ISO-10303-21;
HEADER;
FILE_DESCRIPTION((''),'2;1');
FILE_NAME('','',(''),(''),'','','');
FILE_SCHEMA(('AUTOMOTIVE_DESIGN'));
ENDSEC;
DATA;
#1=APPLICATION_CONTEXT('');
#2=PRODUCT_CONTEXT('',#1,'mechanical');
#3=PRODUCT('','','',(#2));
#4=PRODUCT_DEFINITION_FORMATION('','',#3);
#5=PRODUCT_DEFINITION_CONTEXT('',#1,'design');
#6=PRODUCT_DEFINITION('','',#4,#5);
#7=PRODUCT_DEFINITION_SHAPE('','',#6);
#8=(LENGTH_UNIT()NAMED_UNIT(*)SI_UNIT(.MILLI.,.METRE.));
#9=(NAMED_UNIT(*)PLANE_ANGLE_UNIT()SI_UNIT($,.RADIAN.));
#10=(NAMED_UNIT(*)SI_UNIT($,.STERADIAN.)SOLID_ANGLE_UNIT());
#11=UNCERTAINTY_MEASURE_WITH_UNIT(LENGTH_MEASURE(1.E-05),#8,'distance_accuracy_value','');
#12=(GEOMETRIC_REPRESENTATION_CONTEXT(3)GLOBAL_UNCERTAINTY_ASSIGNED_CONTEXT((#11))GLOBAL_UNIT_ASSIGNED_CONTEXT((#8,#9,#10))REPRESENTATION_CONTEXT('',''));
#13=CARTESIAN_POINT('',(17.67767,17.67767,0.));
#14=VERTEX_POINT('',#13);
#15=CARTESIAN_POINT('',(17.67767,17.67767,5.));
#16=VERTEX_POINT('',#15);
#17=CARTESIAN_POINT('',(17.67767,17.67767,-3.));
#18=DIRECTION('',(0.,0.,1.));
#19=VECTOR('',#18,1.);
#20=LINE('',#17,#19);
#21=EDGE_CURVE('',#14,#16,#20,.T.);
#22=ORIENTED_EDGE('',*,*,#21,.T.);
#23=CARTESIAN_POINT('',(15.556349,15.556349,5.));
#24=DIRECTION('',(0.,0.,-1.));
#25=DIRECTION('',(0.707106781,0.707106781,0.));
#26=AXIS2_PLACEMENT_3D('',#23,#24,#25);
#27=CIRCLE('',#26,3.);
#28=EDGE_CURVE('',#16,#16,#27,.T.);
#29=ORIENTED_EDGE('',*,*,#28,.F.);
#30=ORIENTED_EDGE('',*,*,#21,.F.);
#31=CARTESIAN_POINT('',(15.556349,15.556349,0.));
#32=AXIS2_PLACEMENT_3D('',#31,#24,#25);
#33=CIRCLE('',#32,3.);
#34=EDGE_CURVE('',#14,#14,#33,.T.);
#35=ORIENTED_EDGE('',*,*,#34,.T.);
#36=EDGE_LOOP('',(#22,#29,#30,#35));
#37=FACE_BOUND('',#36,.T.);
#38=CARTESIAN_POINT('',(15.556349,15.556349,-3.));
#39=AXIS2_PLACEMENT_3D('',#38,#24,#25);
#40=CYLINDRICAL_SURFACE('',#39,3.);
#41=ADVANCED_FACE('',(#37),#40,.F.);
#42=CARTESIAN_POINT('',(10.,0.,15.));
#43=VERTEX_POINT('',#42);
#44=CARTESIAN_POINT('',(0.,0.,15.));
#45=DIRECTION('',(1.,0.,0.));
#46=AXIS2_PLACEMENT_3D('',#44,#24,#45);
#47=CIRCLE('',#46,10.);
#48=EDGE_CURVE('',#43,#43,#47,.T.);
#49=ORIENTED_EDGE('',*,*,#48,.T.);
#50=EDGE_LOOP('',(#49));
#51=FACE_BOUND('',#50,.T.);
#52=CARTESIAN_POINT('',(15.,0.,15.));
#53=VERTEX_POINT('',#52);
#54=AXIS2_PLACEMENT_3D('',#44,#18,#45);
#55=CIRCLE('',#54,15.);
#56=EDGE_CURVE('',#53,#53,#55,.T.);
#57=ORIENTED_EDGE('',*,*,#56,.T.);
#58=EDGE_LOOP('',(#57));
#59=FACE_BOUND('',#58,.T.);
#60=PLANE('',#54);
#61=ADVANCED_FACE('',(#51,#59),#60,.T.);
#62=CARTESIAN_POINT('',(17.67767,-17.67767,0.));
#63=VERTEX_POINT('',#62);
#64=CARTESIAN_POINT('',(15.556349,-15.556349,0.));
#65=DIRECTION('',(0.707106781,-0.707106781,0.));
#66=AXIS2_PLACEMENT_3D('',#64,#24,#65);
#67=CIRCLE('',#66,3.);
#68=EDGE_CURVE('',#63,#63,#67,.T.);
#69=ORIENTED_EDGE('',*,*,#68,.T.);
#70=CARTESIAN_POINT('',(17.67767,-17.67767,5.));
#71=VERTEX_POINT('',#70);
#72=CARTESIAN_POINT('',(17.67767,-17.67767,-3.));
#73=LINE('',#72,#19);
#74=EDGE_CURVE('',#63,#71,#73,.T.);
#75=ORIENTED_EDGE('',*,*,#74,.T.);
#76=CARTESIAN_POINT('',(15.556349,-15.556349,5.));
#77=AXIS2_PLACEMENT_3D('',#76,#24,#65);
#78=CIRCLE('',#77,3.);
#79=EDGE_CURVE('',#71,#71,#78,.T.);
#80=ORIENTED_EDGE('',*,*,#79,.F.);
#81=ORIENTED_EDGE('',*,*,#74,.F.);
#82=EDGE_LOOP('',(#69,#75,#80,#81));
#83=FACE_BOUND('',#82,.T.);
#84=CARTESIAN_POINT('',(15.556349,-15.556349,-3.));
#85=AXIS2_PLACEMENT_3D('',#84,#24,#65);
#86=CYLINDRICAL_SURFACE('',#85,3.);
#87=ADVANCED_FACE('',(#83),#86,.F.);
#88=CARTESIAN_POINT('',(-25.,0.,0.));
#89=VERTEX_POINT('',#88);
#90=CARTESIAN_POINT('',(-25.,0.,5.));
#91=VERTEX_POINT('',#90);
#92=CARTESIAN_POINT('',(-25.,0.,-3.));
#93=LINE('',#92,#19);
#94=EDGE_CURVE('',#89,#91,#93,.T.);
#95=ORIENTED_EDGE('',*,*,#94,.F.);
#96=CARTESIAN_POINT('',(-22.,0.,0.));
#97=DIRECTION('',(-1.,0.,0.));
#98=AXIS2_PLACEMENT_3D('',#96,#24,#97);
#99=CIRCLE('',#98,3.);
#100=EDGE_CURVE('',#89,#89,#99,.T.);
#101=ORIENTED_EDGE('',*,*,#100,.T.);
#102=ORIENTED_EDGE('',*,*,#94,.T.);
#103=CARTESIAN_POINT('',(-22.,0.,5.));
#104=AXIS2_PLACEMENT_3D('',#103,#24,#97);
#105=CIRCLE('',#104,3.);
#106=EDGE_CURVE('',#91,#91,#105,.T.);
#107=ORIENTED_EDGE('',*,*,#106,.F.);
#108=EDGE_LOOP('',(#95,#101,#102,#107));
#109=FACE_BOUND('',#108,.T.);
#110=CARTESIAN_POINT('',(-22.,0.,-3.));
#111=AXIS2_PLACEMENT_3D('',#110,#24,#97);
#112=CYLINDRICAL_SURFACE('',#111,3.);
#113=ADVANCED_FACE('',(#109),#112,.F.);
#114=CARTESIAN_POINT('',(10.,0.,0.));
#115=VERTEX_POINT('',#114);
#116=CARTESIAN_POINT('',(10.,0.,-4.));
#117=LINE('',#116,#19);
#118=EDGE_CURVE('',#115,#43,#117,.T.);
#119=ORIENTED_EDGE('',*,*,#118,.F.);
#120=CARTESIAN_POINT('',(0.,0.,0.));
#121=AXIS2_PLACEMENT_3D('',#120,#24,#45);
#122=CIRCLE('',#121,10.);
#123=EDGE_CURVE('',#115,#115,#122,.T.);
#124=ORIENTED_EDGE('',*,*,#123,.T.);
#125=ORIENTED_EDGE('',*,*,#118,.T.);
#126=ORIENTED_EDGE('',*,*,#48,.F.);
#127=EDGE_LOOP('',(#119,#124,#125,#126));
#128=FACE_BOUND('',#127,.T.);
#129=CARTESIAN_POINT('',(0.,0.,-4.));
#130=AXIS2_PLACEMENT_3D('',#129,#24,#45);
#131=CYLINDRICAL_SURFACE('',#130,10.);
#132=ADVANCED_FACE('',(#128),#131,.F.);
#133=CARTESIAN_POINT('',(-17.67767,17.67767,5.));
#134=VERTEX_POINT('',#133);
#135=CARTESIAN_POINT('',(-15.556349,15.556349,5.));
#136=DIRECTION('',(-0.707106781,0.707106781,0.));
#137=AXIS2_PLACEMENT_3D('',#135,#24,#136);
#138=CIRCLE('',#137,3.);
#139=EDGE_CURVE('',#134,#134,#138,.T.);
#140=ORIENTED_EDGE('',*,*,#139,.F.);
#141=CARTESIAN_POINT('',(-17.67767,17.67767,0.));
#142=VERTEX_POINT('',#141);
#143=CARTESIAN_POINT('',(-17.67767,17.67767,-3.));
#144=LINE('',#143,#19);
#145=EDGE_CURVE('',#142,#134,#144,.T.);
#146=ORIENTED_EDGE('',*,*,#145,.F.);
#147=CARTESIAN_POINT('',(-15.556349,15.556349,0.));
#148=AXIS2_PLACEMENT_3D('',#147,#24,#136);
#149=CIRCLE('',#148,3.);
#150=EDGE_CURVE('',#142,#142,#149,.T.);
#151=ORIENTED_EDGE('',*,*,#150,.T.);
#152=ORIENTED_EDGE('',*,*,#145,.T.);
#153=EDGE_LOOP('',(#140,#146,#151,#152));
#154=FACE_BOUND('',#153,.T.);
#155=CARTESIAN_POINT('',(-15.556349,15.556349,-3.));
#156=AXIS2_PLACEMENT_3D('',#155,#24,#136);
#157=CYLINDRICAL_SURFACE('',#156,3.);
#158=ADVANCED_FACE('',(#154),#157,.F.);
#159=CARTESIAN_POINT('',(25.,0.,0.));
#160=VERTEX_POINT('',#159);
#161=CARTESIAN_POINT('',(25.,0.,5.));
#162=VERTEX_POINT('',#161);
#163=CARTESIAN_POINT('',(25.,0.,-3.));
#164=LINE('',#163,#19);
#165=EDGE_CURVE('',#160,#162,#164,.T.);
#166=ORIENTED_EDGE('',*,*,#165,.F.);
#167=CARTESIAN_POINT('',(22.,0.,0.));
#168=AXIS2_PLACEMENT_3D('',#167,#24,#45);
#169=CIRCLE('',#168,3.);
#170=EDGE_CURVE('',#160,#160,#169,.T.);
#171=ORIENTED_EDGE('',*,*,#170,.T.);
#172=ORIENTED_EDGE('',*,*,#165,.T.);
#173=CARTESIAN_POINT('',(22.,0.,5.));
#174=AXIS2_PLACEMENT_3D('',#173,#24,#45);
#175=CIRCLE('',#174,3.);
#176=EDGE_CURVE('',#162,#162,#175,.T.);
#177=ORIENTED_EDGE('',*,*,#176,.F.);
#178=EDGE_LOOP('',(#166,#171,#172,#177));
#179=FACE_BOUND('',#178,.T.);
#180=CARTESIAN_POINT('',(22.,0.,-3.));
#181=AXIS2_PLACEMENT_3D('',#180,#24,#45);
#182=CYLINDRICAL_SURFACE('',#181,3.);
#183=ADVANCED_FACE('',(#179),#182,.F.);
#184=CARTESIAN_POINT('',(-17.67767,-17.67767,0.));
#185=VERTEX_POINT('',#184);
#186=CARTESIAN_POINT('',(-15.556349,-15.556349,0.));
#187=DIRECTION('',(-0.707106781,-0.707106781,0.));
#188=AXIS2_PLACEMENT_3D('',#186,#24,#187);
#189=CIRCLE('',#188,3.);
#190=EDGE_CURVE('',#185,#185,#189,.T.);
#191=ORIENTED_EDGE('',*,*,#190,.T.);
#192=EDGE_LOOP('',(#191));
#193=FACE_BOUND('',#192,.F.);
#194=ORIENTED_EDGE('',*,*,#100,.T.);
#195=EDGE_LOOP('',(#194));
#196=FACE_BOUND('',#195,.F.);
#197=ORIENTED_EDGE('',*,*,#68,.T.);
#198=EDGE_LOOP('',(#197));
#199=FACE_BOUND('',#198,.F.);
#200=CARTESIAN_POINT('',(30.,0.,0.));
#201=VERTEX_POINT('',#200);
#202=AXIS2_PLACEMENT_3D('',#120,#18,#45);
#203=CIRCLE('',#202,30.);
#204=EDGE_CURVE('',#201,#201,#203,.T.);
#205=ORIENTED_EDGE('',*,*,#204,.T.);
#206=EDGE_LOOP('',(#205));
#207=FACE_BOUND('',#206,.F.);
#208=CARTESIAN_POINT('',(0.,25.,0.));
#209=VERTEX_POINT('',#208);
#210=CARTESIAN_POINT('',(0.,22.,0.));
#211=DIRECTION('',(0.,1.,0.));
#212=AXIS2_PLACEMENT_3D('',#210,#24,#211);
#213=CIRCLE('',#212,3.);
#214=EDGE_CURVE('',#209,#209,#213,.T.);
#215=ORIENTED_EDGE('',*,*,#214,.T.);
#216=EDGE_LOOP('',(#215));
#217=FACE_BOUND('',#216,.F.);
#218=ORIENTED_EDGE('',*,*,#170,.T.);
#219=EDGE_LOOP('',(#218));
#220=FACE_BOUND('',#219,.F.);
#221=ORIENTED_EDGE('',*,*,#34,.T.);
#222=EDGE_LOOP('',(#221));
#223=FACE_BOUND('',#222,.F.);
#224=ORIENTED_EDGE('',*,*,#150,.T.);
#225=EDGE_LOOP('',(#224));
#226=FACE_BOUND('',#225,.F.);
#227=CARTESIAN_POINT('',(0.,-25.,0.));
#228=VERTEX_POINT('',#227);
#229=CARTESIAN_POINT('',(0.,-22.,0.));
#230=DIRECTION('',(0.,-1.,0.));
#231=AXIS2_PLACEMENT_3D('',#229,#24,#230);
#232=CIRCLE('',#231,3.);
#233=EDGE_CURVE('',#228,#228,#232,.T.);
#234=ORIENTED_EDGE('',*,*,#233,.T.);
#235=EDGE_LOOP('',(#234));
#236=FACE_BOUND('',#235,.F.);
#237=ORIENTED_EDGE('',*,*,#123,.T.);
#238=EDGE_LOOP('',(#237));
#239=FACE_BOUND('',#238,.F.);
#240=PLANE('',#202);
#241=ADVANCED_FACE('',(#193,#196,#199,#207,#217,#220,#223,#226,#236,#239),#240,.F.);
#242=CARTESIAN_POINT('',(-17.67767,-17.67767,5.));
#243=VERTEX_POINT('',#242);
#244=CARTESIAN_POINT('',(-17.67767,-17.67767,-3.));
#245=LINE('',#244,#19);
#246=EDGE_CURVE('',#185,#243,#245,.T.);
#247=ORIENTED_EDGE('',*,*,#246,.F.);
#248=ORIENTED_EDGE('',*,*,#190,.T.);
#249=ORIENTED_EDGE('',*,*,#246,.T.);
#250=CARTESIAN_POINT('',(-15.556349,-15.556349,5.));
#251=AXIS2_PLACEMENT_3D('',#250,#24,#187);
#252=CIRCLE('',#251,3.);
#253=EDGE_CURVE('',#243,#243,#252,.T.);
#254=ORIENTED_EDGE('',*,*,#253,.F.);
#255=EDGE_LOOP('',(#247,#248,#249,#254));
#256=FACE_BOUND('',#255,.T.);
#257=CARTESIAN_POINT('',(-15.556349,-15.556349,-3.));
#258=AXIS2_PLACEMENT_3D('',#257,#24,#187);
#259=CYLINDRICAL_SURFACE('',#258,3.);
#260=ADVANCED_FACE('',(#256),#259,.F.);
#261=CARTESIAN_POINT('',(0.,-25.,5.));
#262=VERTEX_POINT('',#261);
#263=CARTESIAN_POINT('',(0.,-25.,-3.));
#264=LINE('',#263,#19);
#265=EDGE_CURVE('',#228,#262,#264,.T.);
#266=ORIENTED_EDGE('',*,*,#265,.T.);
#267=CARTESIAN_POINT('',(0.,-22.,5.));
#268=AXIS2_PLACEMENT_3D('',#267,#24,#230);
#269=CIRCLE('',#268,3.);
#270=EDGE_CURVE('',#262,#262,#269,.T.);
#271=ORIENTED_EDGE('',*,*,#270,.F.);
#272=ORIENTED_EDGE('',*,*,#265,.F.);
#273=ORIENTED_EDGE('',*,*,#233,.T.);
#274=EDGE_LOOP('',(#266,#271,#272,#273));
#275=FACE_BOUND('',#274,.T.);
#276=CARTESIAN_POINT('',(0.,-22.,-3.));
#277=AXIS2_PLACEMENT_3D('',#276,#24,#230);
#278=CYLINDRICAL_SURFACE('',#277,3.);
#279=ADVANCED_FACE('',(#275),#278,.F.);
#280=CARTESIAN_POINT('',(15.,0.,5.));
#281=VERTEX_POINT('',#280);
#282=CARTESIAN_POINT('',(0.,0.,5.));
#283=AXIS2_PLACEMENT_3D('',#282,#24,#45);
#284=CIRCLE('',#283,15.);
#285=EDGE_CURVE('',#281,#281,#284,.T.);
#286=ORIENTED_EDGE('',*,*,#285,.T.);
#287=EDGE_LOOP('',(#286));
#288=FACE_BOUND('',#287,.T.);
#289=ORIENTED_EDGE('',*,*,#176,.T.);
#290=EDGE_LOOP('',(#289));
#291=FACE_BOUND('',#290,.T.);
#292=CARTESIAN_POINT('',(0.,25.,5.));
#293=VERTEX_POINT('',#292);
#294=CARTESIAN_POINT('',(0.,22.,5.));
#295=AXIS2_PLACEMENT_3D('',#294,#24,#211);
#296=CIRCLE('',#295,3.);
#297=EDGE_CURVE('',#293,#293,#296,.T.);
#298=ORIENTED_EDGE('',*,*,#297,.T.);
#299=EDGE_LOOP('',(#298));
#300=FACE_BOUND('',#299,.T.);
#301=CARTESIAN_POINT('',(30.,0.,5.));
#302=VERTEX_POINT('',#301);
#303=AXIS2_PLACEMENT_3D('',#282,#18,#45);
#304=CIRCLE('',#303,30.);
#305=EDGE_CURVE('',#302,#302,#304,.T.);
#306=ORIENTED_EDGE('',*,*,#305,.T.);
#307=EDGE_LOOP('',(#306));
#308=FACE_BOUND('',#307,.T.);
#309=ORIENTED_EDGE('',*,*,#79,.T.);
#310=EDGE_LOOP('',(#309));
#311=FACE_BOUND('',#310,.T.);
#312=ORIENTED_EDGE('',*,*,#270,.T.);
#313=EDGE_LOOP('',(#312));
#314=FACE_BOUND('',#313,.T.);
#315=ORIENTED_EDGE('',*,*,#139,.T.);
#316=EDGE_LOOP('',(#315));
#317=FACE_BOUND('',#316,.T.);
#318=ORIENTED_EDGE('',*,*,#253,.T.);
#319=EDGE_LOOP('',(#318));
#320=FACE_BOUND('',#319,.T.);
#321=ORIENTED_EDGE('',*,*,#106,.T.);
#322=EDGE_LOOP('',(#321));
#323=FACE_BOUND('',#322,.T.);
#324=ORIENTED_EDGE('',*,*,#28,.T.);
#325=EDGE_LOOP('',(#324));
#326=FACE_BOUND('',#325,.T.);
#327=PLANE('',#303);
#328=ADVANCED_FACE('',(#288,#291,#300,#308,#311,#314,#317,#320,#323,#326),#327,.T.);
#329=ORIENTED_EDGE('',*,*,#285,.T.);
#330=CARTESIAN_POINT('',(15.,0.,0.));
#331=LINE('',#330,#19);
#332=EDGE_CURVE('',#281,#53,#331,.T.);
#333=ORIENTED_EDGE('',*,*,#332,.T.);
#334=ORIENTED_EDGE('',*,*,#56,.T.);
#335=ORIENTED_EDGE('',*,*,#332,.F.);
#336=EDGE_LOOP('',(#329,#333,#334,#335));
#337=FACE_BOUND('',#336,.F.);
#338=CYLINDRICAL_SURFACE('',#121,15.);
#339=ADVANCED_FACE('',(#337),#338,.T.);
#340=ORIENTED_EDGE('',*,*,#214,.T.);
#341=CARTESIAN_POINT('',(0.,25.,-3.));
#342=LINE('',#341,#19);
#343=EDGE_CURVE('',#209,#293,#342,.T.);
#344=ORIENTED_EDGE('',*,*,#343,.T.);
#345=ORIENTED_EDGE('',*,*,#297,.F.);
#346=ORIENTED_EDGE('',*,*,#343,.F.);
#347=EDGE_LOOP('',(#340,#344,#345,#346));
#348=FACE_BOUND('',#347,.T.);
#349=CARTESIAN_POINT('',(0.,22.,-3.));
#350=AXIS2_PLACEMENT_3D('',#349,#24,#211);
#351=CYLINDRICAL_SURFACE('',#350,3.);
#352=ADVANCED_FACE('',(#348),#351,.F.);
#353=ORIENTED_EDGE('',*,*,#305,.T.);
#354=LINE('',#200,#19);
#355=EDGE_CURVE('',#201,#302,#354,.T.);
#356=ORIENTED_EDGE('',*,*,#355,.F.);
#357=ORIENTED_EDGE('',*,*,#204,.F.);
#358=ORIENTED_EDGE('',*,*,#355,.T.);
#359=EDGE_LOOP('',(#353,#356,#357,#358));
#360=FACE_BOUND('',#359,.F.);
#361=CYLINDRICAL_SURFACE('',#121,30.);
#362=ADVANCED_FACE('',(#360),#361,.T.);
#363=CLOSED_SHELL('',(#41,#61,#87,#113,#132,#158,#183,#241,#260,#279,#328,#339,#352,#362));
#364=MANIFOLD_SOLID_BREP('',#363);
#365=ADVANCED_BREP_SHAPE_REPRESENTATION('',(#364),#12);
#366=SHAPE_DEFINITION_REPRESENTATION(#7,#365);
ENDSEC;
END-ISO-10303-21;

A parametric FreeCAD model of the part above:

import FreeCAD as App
import Part
import Sketcher

V = App.Vector

doc = App.newDocument("Part")
params = doc.addObject("Spreadsheet::Sheet", "Params")
for row, (alias, value) in enumerate([
    ("sketch1_diameter", "6 mm"),
    ("pad1_length", "10 mm"),
    ("sketch2_diameter", "20 mm"),
    ("pad2_length", "30 mm"),
    ("sketch3_diameter", "30 mm"),
    ("pad3_length", "15 mm"),
    ("sketch4_diameter", "60 mm"),
    ("pad4_length", "5 mm"),
], start=1):
    params.set(f"A{row}", alias)
    params.set(f"B{row}", "=" + value)
    params.setAlias(f"B{row}", alias)

body = doc.addObject("PartDesign::Body", "Body")

# Sketch on XY plane
sketch1 = doc.addObject("Sketcher::SketchObject", "Sketch")
body.addObject(sketch1)
sketch1.AttachmentSupport = (doc.XY_Plane, [""])
sketch1.MapMode = "FlatFace"
sketch1.AttachmentOffset = App.Placement(V(0, 0, -3), App.Rotation())
sketch1.addGeometry(Part.Circle(V(22, 0, 0), V(0, 0, 1), 3), False)
sketch1.addConstraint(Sketcher.Constraint("PointOnObject", 0, 3, -1))
sketch1.addConstraint(Sketcher.Constraint("Diameter", 0, 6.0))
sketch1.addConstraint(Sketcher.Constraint("DistanceX", -1, 1, 0, 3, 22.0))
sketch1.setExpression("Constraints[1]", "Params.sketch1_diameter")
pad1 = doc.addObject("PartDesign::Pad", "Pad")
body.addObject(pad1)
pad1.Profile = sketch1
pad1.setExpression("Length", "Params.pad1_length")
body2 = doc.addObject("PartDesign::Body", "Body001")
body2.AllowCompound = True
doc.recompute()

body2.BaseFeature = body
doc.recompute()

body3 = doc.addObject("PartDesign::Body", "Body002")
body3.BaseFeature = body
body3.Placement = App.Placement(V(0, 0, 0), App.Rotation(V(0, 0, 1), 45))
boolean = doc.addObject("PartDesign::Boolean", "Boolean")
body2.addObject(boolean)
boolean.Type = "Fuse"
boolean.addObjects([body3])
doc.recompute()

body4 = doc.addObject("PartDesign::Body", "Body003")
body4.BaseFeature = body
body4.Placement = App.Placement(V(0, 0, 0), App.Rotation(V(0, 0, 1), 90))
boolean2 = doc.addObject("PartDesign::Boolean", "Boolean001")
body2.addObject(boolean2)
boolean2.Type = "Fuse"
boolean2.addObjects([body4])
doc.recompute()

body5 = doc.addObject("PartDesign::Body", "Body004")
body5.BaseFeature = body
body5.Placement = App.Placement(V(0, 0, 0), App.Rotation(V(0, 0, 1), 135))
boolean3 = doc.addObject("PartDesign::Boolean", "Boolean002")
body2.addObject(boolean3)
boolean3.Type = "Fuse"
boolean3.addObjects([body5])
doc.recompute()

body6 = doc.addObject("PartDesign::Body", "Body005")
body6.BaseFeature = body
body6.Placement = App.Placement(V(0, 0, 0), App.Rotation(V(0, 0, 1), 180))
boolean4 = doc.addObject("PartDesign::Boolean", "Boolean003")
body2.addObject(boolean4)
boolean4.Type = "Fuse"
boolean4.addObjects([body6])
doc.recompute()

body7 = doc.addObject("PartDesign::Body", "Body006")
body7.BaseFeature = body
body7.Placement = App.Placement(V(0, 0, 0), App.Rotation(V(0, 0, 1), 225))
boolean5 = doc.addObject("PartDesign::Boolean", "Boolean004")
body2.addObject(boolean5)
boolean5.Type = "Fuse"
boolean5.addObjects([body7])
doc.recompute()

body8 = doc.addObject("PartDesign::Body", "Body007")
body8.BaseFeature = body
body8.Placement = App.Placement(V(0, 0, 0), App.Rotation(V(0, 0, 1), 270))
boolean6 = doc.addObject("PartDesign::Boolean", "Boolean005")
body2.addObject(boolean6)
boolean6.Type = "Fuse"
boolean6.addObjects([body8])
doc.recompute()

body.Placement = App.Placement(V(0, 0, 0), App.Rotation(V(0, 0, 1), 315))
boolean7 = doc.addObject("PartDesign::Boolean", "Boolean006")
body2.addObject(boolean7)
boolean7.Type = "Fuse"
boolean7.addObjects([body])
body9 = doc.addObject("PartDesign::Body", "Body008")

# Sketch on XY plane
sketch2 = doc.addObject("Sketcher::SketchObject", "Sketch001")
body9.addObject(sketch2)
sketch2.AttachmentSupport = (doc.getObject("XY_Plane008"), [""])
sketch2.MapMode = "FlatFace"
sketch2.AttachmentOffset = App.Placement(V(0, 0, -4), App.Rotation())
sketch2.addGeometry(Part.Circle(V(0, 0, 0), V(0, 0, 1), 10), False)
sketch2.addConstraint(Sketcher.Constraint("Coincident", 0, 3, -1, 1))
sketch2.addConstraint(Sketcher.Constraint("Diameter", 0, 20.0))
sketch2.setExpression("Constraints[1]", "Params.sketch2_diameter")
pad2 = doc.addObject("PartDesign::Pad", "Pad001")
body9.addObject(pad2)
pad2.Profile = sketch2
pad2.setExpression("Length", "Params.pad2_length")
body10 = doc.addObject("PartDesign::Body", "Body009")

# Sketch on XY plane
sketch3 = doc.addObject("Sketcher::SketchObject", "Sketch002")
body10.addObject(sketch3)
sketch3.AttachmentSupport = (doc.getObject("XY_Plane009"), [""])
sketch3.MapMode = "FlatFace"
sketch3.addGeometry(Part.Circle(V(0, 0, 0), V(0, 0, 1), 15), False)
sketch3.addConstraint(Sketcher.Constraint("Coincident", 0, 3, -1, 1))
sketch3.addConstraint(Sketcher.Constraint("Diameter", 0, 30.0))
sketch3.setExpression("Constraints[1]", "Params.sketch3_diameter")
pad3 = doc.addObject("PartDesign::Pad", "Pad002")
body10.addObject(pad3)
pad3.Profile = sketch3
pad3.setExpression("Length", "Params.pad3_length")
body11 = doc.addObject("PartDesign::Body", "Body010")

# Sketch on XY plane
sketch4 = doc.addObject("Sketcher::SketchObject", "Sketch003")
body11.addObject(sketch4)
sketch4.AttachmentSupport = (doc.getObject("XY_Plane010"), [""])
sketch4.MapMode = "FlatFace"
sketch4.addGeometry(Part.Circle(V(0, 0, 0), V(0, 0, 1), 30), False)
sketch4.addConstraint(Sketcher.Constraint("Coincident", 0, 3, -1, 1))
sketch4.addConstraint(Sketcher.Constraint("Diameter", 0, 60.0))
sketch4.setExpression("Constraints[1]", "Params.sketch4_diameter")
pad4 = doc.addObject("PartDesign::Pad", "Pad003")
body11.addObject(pad4)
pad4.Profile = sketch4
pad4.setExpression("Length", "Params.pad4_length")
doc.recompute()

boolean8 = doc.addObject("PartDesign::Boolean", "Boolean007")
body11.addObject(boolean8)
boolean8.Type = "Fuse"
boolean8.addObjects([body10])
doc.recompute()

boolean9 = doc.addObject("PartDesign::Boolean", "Boolean008")
body11.addObject(boolean9)
boolean9.Type = "Cut"
boolean9.addObjects([body9])
doc.recompute()

boolean10 = doc.addObject("PartDesign::Boolean", "Boolean009")
body11.addObject(boolean10)
boolean10.Type = "Cut"
boolean10.addObjects([body2])

doc.recompute()
